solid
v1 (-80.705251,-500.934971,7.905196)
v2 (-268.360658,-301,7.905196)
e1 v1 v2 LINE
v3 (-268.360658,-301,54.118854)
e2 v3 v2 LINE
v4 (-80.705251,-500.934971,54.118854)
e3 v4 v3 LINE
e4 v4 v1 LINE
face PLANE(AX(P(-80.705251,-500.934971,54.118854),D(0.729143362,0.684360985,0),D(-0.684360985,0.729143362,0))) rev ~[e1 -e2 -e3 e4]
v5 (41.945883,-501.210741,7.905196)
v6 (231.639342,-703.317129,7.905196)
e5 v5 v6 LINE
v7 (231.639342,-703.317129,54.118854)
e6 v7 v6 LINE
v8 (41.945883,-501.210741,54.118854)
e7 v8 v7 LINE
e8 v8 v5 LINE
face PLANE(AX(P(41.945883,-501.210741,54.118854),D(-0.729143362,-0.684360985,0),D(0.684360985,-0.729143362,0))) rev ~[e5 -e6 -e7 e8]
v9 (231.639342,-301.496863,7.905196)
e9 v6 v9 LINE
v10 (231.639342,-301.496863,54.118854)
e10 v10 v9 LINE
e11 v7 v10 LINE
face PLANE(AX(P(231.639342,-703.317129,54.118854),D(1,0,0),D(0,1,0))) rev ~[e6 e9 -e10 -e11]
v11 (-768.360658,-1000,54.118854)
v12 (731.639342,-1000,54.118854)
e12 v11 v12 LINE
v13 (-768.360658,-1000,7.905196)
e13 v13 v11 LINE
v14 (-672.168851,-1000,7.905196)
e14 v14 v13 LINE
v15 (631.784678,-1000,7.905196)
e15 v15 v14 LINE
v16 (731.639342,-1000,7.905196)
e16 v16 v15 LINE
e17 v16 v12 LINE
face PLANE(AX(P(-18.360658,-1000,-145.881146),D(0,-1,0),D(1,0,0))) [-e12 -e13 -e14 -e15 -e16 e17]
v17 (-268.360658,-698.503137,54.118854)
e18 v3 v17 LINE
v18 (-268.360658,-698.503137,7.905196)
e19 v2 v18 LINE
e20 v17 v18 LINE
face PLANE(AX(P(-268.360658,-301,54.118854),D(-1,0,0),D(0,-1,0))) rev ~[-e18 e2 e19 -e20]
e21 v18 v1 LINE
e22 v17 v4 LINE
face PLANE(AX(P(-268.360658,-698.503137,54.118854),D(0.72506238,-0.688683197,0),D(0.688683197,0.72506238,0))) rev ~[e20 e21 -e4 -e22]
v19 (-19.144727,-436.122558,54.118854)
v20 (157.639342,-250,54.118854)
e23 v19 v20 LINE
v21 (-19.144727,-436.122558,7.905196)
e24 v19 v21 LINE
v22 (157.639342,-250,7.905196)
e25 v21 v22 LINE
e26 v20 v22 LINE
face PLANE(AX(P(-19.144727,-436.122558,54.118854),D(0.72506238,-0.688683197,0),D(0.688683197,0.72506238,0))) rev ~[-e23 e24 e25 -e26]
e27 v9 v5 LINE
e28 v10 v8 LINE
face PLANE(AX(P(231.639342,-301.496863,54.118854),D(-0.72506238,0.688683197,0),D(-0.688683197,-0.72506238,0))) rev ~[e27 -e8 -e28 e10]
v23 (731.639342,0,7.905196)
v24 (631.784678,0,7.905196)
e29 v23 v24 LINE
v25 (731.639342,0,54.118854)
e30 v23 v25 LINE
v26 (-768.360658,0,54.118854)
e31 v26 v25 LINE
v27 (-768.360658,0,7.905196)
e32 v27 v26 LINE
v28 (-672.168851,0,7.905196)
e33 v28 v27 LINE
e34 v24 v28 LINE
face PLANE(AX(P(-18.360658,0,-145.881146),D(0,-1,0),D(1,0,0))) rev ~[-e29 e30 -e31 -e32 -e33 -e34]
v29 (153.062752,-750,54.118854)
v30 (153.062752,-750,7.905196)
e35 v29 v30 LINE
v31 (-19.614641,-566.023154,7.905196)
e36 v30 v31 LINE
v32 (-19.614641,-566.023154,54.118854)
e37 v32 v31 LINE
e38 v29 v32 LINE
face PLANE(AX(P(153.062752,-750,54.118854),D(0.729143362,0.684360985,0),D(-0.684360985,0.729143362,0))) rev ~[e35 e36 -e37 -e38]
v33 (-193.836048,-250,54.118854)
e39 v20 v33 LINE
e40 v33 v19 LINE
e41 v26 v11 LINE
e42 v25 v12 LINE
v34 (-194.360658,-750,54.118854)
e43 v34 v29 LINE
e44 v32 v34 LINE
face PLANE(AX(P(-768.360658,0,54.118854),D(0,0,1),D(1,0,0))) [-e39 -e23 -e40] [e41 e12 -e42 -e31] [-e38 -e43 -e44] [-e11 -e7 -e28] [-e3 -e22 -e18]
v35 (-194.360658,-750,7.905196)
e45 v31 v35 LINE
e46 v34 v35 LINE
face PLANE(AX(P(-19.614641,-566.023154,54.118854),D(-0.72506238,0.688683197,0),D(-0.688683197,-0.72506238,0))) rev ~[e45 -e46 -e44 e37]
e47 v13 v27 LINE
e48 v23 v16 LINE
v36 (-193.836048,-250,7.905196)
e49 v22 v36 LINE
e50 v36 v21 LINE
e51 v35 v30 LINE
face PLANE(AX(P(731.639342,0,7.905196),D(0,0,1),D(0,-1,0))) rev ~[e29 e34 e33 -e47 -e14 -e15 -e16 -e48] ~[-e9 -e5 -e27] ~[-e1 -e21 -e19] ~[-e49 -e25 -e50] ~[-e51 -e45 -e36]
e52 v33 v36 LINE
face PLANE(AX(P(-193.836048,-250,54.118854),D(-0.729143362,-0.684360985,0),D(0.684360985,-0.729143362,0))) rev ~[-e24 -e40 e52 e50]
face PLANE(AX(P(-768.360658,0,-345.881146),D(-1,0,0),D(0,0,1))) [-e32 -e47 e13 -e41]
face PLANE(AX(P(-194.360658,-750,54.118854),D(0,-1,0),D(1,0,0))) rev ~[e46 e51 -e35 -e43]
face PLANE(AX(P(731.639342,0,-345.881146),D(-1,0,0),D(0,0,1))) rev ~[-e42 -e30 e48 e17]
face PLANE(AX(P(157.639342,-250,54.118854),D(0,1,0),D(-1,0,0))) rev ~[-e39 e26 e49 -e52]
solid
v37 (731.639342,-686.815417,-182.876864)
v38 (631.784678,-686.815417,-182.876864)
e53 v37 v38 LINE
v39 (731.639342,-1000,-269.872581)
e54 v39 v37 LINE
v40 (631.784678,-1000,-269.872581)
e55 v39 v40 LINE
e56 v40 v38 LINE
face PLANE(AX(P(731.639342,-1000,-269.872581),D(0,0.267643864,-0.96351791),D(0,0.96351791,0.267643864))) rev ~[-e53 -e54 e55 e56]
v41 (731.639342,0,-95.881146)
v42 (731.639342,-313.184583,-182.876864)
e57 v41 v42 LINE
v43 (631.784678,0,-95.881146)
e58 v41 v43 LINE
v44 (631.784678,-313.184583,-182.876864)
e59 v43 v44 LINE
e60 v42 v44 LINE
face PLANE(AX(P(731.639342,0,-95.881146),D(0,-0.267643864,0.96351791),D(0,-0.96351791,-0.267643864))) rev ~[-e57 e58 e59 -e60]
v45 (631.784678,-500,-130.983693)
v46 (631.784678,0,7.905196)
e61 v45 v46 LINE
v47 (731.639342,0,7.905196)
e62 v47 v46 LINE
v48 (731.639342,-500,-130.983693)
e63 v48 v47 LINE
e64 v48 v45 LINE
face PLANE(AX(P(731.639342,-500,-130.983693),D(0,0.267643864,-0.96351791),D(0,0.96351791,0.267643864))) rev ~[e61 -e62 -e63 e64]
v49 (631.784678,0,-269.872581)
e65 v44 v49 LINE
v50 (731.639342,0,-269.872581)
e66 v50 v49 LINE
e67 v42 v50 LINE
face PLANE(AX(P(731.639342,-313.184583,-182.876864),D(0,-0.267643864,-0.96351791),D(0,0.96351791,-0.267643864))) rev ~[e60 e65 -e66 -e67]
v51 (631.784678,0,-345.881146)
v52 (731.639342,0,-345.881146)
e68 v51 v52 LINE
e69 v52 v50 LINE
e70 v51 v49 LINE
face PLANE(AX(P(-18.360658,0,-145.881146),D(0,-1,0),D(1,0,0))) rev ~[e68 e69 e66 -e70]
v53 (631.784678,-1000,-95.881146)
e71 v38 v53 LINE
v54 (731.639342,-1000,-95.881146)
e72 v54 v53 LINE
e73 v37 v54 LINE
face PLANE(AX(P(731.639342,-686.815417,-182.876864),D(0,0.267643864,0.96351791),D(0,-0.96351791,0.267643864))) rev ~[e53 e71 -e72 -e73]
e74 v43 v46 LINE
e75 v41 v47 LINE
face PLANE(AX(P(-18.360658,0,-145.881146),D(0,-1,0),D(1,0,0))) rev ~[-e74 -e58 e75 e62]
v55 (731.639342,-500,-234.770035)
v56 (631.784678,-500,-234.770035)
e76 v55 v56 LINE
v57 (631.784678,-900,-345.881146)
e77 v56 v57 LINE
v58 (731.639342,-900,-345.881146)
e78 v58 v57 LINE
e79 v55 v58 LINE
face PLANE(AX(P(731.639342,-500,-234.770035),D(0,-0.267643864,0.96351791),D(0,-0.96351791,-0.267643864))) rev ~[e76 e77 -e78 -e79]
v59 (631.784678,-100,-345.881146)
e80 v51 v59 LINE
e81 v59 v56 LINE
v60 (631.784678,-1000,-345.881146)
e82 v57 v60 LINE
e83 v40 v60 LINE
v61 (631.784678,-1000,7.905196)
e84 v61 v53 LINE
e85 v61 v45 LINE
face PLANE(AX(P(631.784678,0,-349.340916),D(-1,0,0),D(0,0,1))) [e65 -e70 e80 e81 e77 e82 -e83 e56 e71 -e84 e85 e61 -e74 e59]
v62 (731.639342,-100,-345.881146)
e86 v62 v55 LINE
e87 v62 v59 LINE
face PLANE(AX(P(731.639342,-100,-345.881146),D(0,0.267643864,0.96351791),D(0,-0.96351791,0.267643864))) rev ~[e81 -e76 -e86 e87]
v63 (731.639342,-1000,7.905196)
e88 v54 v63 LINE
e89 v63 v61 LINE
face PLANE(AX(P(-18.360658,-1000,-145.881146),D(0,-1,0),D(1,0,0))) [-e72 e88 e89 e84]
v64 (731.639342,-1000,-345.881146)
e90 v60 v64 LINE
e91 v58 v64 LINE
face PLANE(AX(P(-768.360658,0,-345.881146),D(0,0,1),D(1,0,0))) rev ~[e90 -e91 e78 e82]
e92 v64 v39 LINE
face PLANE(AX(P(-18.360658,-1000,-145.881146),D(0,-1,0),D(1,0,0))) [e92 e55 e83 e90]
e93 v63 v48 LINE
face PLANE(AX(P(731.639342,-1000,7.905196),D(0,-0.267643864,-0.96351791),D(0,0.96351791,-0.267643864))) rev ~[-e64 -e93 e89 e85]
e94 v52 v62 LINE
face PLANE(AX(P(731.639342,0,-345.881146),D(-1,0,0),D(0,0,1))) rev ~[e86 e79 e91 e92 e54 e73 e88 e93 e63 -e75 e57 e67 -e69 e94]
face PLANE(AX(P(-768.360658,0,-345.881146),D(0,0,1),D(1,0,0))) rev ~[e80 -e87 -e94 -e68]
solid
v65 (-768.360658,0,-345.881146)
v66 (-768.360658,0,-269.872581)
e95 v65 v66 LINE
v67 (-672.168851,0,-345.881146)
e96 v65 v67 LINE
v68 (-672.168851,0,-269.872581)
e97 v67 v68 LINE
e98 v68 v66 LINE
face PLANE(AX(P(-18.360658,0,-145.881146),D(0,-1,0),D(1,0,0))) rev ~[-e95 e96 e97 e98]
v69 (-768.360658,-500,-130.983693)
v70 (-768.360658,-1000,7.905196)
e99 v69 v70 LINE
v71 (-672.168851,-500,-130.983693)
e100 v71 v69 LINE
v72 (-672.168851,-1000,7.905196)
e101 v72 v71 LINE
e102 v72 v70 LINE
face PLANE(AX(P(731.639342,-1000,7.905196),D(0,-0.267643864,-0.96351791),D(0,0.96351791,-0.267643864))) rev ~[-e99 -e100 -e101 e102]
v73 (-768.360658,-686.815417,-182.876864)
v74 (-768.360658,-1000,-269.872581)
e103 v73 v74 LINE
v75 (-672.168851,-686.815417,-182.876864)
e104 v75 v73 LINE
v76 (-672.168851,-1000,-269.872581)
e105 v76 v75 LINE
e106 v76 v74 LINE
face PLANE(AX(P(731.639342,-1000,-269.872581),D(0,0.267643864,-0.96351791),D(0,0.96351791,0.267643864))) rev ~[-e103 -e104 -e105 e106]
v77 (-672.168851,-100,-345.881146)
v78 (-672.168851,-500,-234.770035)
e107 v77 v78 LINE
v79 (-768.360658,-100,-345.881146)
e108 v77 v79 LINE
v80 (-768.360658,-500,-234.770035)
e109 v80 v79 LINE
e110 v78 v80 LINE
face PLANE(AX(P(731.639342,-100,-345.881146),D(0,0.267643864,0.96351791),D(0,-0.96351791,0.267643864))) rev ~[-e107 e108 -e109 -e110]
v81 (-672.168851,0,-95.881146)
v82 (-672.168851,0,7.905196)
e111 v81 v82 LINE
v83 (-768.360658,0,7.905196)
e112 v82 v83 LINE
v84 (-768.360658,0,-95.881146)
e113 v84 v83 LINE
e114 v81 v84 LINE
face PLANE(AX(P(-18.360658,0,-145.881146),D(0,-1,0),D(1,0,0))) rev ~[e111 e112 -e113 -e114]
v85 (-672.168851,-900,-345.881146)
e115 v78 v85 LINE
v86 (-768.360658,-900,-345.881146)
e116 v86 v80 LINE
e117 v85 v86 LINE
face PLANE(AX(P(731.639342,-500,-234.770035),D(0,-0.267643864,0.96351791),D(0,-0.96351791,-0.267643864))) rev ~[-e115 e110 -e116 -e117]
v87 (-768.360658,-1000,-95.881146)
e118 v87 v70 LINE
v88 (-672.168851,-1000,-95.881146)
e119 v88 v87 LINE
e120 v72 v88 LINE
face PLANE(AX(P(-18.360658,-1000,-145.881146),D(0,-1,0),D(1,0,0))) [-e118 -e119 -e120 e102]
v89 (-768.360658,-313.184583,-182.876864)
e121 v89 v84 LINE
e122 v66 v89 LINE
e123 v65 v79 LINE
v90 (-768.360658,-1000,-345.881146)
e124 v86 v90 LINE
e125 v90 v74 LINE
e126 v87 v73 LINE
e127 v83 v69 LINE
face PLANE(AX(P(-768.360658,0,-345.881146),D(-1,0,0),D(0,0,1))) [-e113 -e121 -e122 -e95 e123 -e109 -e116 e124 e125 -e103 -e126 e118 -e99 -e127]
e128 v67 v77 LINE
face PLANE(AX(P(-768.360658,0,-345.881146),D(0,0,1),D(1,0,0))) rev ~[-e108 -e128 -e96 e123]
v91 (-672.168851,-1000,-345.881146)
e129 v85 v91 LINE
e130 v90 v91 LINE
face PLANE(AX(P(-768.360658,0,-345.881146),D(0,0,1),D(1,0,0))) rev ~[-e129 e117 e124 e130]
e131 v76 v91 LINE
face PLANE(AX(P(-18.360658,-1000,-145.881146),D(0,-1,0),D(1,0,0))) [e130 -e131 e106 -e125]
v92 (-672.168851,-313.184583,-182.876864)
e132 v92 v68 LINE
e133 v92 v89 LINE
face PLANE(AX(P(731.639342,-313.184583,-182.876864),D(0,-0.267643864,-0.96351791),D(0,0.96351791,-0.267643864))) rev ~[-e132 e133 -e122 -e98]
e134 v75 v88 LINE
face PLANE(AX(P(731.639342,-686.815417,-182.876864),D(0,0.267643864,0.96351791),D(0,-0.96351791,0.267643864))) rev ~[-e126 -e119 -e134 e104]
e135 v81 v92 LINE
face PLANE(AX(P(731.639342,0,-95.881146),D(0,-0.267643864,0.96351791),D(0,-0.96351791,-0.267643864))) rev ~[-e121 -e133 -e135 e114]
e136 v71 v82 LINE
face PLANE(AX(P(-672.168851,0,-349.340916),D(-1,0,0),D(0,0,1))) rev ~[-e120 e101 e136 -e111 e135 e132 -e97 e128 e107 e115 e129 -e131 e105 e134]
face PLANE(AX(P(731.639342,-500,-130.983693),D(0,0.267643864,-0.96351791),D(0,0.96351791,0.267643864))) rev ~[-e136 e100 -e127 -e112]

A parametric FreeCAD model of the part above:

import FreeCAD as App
import Part
import Sketcher
from FreeCAD import Vector


def add_polygon(sketch, points):
    """Adds a closed chain of lines whose ends are joined by coincident constraints."""
    first, n = sketch.GeometryCount, len(points)
    for a, b in zip(points, points[1:] + points[:1]):
        sketch.addGeometry(Part.LineSegment(App.Vector(*a, 0), App.Vector(*b, 0)), False)
    for i in range(n):
        sketch.addConstraint(Sketcher.Constraint("Coincident", first + i, 2, first + (i + 1) % n, 1))

doc = App.newDocument("Part")
body = doc.addObject("PartDesign::Body", "Body")
body.AllowCompound = True

sketch1 = body.newObject("Sketcher::SketchObject", "Sketch")
sketch1.AttachmentSupport = (doc.getObject("XZ_Plane"), [""])
sketch1.MapMode = "FlatFace"
add_polygon(sketch1, [(-768, 54), (-768, -346), (732, -346), (732, 54)])
sketch1.addConstraint([
    Sketcher.Constraint("Vertical", 0),
    Sketcher.Constraint("Horizontal", 1),
    Sketcher.Constraint("Vertical", 2),
    Sketcher.Constraint("Horizontal", 3),
    Sketcher.Constraint("DistanceX", 1, 1, 1, 2, 1500.0),
    Sketcher.Constraint("DistanceY", 0, 2, 0, 1, 400.0),
    Sketcher.Constraint("DistanceX", 0, 2, -1, 1, 768.360658),
    Sketcher.Constraint("DistanceY", 0, 2, -1, 1, 345.881146),
])
pad1 = body.newObject("PartDesign::Pad", "Pad")
pad1.Profile = sketch1
pad1.Length = 1000

sketch2 = body.newObject("Sketcher::SketchObject", "Sketch001")
sketch2.AttachmentSupport = (doc.getObject("YZ_Plane"), [""])
sketch2.MapMode = "FlatFace"
sketch2.AttachmentOffset = App.Placement(Vector(0, 0, 731.639342), App.Rotation())
add_polygon(sketch2, [(-1000, 8), (-500, -131), (0, 8)])
add_polygon(sketch2, [(-500, -235), (-900, -346), (-100, -346)])
add_polygon(sketch2, [(0, -96), (-313, -183), (0, -270)])
add_polygon(sketch2, [(-1000, -270), (-687, -183), (-1000, -96)])
sketch2.addConstraint([
    Sketcher.Constraint("Horizontal", 2),
    Sketcher.Constraint("Horizontal", 4),
    Sketcher.Constraint("Vertical", 8),
    Sketcher.Constraint("Vertical", 11),
    Sketcher.Constraint("PointOnObject", 1, 2, -2),
    Sketcher.Constraint("PointOnObject", 7, 2, -2),
    Sketcher.Constraint("Parallel", 1, 3),
    Sketcher.Constraint("Parallel", 0, 5),
    Sketcher.Constraint("Parallel", 3, 6),
    Sketcher.Constraint("Parallel", 5, 7),
    Sketcher.Constraint("Parallel", 6, 9),
    Sketcher.Constraint("Parallel", 7, 10),
    Sketcher.Constraint("Horizontal", 6, 2, 9, 2),
    Sketcher.Constraint("Horizontal", 8, 2, 10, 2),
    Sketcher.Constraint("Horizontal", 7, 2, 11, 2),
    Sketcher.Constraint("Vertical", 0, 2, 5, 2),
    Sketcher.Constraint("Vertical", 2, 2, 10, 2),
    Sketcher.Constraint("DistanceX", 2, 2, 2, 1, 1000.0),
    Sketcher.Constraint("DistanceX", 4, 1, 4, 2, 800.0),
    Sketcher.Constraint("DistanceY", 4, 2, 8, 2, 250.0),
    Sketcher.Constraint("Distance", 3, 415.145371),
    Sketcher.Constraint("DistanceY", 8, 1, 8, 2, 173.991435),
    Sketcher.Constraint("DistanceY", 7, 2, -1, 1, 269.872581),
    Sketcher.Constraint("DistanceY", 5, 2, 1, 2, 242.675232),
])
pocket1 = body.newObject("PartDesign::Pocket", "Pocket")
pocket1.Profile = sketch2
pocket1.Type = "ThroughAll"

sketch3 = body.newObject("Sketcher::SketchObject", "Sketch002")
sketch3.AttachmentSupport = (doc.getObject("XZ_Plane"), [""])
sketch3.MapMode = "FlatFace"
add_polygon(sketch3, [(632, 8), (632, -349), (-672, -349), (-672, 8)])
sketch3.addConstraint([
    Sketcher.Constraint("Vertical", 0),
    Sketcher.Constraint("Horizontal", 1),
    Sketcher.Constraint("Vertical", 2),
    Sketcher.Constraint("Horizontal", 3),
    Sketcher.Constraint("DistanceX", 1, 2, 1, 1, 1303.953528),
    Sketcher.Constraint("DistanceY", 0, 2, 0, 1, 357.246112),
    Sketcher.Constraint("DistanceX", 1, 2, -1, 1, 672.168851),
    Sketcher.Constraint("DistanceY", 0, 2, -1, 1, 349.340916),
])
pocket2 = body.newObject("PartDesign::Pocket", "Pocket001")
pocket2.Profile = sketch3
pocket2.Type = "ThroughAll"
pocket2.Reversed = True

sketch4 = body.newObject("Sketcher::SketchObject", "Sketch003")
sketch4.AttachmentSupport = (doc.getObject("XY_Plane"), [""])
sketch4.MapMode = "FlatFace"
sketch4.AttachmentOffset = App.Placement(Vector(0, 0, 54.118854), App.Rotation())
add_polygon(sketch4, [(232, -703), (232, -301), (42, -501)])
add_polygon(sketch4, [(153, -750), (-20, -566), (-194, -750)])
add_polygon(sketch4, [(-268, -699), (-81, -501), (-268, -301)])
add_polygon(sketch4, [(-19, -436), (158, -250), (-194, -250)])
sketch4.addConstraint([
    Sketcher.Constraint("Vertical", 0),
    Sketcher.Constraint("Horizontal", 5),
    Sketcher.Constraint("Vertical", 8),
    Sketcher.Constraint("Horizontal", 10),
    Sketcher.Constraint("Parallel", 2, 3),
    Sketcher.Constraint("Parallel", 1, 4),
    Sketcher.Constraint("Parallel", 4, 6),
    Sketcher.Constraint("Parallel", 3, 7),
    Sketcher.Constraint("Parallel", 6, 9),
    Sketcher.Constraint("Parallel", 7, 11),
    Sketcher.Constraint("DistanceY", 4, 2, -1, 1, 750.0),
    Sketcher.Constraint("DistanceY", 7, 2, -1, 1, 301.0),
    Sketcher.Constraint("DistanceY", 9, 2, -1, 1, 250.0),
    Sketcher.Constraint("DistanceX", 4, 2, 2, 2, 426.0),
    Sketcher.Constraint("DistanceX", 7, 2, 4, 2, 74.0),
    Sketcher.Constraint("DistanceX", 9, 2, 0, 2, 74.0),
    Sketcher.Constraint("DistanceX", 5, 1, 5, 2, 347.42341),
    Sketcher.Constraint("DistanceX", 10, 2, 10, 1, 351.475391),
    Sketcher.Constraint("Distance", 6, 272.484369),
    Sketcher.Constraint("DistanceY", 0, 1, 0, 2, 401.820266),
    Sketcher.Constraint("DistanceY", 8, 2, 8, 1, 397.503137),
    Sketcher.Constraint("DistanceY", 1, 2, -1, 1, 501.210741),
    Sketcher.Constraint("DistanceY", 2, 2, -1, 1, 703.317129),
    Sketcher.Constraint("DistanceX", 3, 2, -1, 1, 19.614641),
])
pocket3 = body.newObject("PartDesign::Pocket", "Pocket002")
pocket3.Profile = sketch4
pocket3.Type = "ThroughAll"

doc.recompute()
